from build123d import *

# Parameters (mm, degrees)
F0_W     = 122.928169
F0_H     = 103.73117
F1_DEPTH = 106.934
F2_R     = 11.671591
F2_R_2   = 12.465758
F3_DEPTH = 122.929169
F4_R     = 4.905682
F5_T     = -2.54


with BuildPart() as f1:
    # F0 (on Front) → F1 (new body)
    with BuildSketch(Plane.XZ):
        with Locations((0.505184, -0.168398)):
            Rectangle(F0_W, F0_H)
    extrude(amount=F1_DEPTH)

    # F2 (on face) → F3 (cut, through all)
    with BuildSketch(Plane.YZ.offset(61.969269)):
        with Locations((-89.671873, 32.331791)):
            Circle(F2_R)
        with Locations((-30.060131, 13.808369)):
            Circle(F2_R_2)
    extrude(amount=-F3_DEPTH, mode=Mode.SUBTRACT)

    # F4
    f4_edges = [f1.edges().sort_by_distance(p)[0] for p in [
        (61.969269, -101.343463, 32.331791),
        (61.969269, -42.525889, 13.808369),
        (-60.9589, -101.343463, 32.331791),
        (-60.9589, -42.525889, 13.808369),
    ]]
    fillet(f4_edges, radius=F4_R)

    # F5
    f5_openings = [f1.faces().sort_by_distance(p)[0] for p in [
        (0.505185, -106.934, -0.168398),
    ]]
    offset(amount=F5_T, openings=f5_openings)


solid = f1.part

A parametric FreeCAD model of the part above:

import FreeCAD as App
import Part
import Sketcher

V = App.Vector
Q = App.Units.Quantity


def edges_at(feature, points):
    """Names of the edges that pass closest to the given points."""
    edges = feature.Shape.Edges
    near = lambda p: min(range(len(edges)), key=lambda i: edges[i].distToShape(Part.Vertex(*p))[0])
    return sorted({f"Edge{near(p) + 1}" for p in points})


def faces_at(feature, points):
    """Names of the faces that lie closest to the given points."""
    faces = feature.Shape.Faces
    near = lambda p: min(range(len(faces)), key=lambda i: faces[i].distToShape(Part.Vertex(*p))[0])
    return sorted({f"Face{near(p) + 1}" for p in points})

doc = App.newDocument("Part")
params = doc.addObject("Spreadsheet::Sheet", "Params")
for row, (alias, value) in enumerate([
    ("pad1_length", "4.21 in"),
    ("fillet_radius", "4.905682 mm"),
    ("thickness_wall", "0.1 in"),
], start=1):
    params.set(f"A{row}", alias)
    params.set(f"B{row}", "=" + value)
    params.setAlias(f"B{row}", alias)

body = doc.addObject("PartDesign::Body", "Body")

# Sketch on XZ plane
sketch1 = body.newObject("Sketcher::SketchObject", "Sketch")
sketch1.AttachmentSupport = (doc.getObject("XZ_Plane"), [""])
sketch1.MapMode = "FlatFace"
sketch1.addGeometry(Part.LineSegment(V(-61, 52, 0), V(-61, -52, 0)), False)
sketch1.addGeometry(Part.LineSegment(V(-61, -52, 0), V(62, -52, 0)), False)
sketch1.addGeometry(Part.LineSegment(V(62, -52, 0), V(62, 52, 0)), False)
sketch1.addGeometry(Part.LineSegment(V(62, 52, 0), V(-61, 52, 0)), False)
sketch1.addConstraint(Sketcher.Constraint("Coincident", 0, 2, 1, 1))
sketch1.addConstraint(Sketcher.Constraint("Coincident", 1, 2, 2, 1))
sketch1.addConstraint(Sketcher.Constraint("Coincident", 2, 2, 3, 1))
sketch1.addConstraint(Sketcher.Constraint("Coincident", 3, 2, 0, 1))
sketch1.addConstraint(Sketcher.Constraint("Vertical", 0))
sketch1.addConstraint(Sketcher.Constraint("Horizontal", 1))
sketch1.addConstraint(Sketcher.Constraint("Vertical", 2))
sketch1.addConstraint(Sketcher.Constraint("Horizontal", 3))
sketch1.addConstraint(Sketcher.Constraint("DistanceX", 1, 1, 1, 2, Q("122.928169 mm")))
sketch1.addConstraint(Sketcher.Constraint("DistanceY", 0, 2, 0, 1, Q("103.73117 mm")))
sketch1.addConstraint(Sketcher.Constraint("DistanceX", 0, 2, -1, 1, Q("60.9589 mm")))
sketch1.addConstraint(Sketcher.Constraint("DistanceY", 0, 2, -1, 1, Q("52.033983 mm")))
pad1 = body.newObject("PartDesign::Pad", "Pad")
pad1.Profile = sketch1
pad1.setExpression("Length", "Params.pad1_length")

# Sketch on YZ plane
sketch2 = body.newObject("Sketcher::SketchObject", "Sketch001")
sketch2.AttachmentSupport = (doc.getObject("YZ_Plane"), [""])
sketch2.MapMode = "FlatFace"
sketch2.AttachmentOffset = App.Placement(V(0, 0, 61.969269), App.Rotation())
sketch2.addGeometry(Part.Circle(V(-90, 32, 0), V(0, 0, 1), 12), False)
sketch2.addGeometry(Part.Circle(V(-30, 14, 0), V(0, 0, 1), 12), False)
sketch2.addConstraint(Sketcher.Constraint("Diameter", 0, Q("23.343182 mm")))
sketch2.addConstraint(Sketcher.Constraint("Diameter", 1, Q("24.931516 mm")))
sketch2.addConstraint(Sketcher.Constraint("DistanceY", -1, 1, 0, 3, Q("32.331791 mm")))
sketch2.addConstraint(Sketcher.Constraint("DistanceX", 1, 3, -1, 1, Q("30.060131 mm")))
sketch2.addConstraint(Sketcher.Constraint("DistanceY", -1, 1, 1, 3, Q("13.808369 mm")))
sketch2.addConstraint(Sketcher.Constraint("DistanceX", 0, 3, -1, 1, Q("89.671873 mm")))
pocket1 = body.newObject("PartDesign::Pocket", "Pocket")
pocket1.Profile = sketch2
pocket1.Type = "ThroughAll"
doc.recompute()

fillet = body.newObject("PartDesign::Fillet", "Fillet")
fillet.Base = (pocket1, edges_at(pocket1, [
    (61.969, -101.343, 32.332),
    (61.969, -42.526, 13.808),
    (-60.959, -101.343, 32.332),
    (-60.959, -42.526, 13.808),
]))
fillet.setExpression("Radius", "Params.fillet_radius")
doc.recompute()

thickness = body.newObject("PartDesign::Thickness", "Thickness")
thickness.Base = (fillet, faces_at(fillet, [(0.505, -106.934, -0.168)]))
thickness.setExpression("Value", "Params.thickness_wall")
thickness.Reversed = True
thickness.Join = "Arc"

doc.recompute()
